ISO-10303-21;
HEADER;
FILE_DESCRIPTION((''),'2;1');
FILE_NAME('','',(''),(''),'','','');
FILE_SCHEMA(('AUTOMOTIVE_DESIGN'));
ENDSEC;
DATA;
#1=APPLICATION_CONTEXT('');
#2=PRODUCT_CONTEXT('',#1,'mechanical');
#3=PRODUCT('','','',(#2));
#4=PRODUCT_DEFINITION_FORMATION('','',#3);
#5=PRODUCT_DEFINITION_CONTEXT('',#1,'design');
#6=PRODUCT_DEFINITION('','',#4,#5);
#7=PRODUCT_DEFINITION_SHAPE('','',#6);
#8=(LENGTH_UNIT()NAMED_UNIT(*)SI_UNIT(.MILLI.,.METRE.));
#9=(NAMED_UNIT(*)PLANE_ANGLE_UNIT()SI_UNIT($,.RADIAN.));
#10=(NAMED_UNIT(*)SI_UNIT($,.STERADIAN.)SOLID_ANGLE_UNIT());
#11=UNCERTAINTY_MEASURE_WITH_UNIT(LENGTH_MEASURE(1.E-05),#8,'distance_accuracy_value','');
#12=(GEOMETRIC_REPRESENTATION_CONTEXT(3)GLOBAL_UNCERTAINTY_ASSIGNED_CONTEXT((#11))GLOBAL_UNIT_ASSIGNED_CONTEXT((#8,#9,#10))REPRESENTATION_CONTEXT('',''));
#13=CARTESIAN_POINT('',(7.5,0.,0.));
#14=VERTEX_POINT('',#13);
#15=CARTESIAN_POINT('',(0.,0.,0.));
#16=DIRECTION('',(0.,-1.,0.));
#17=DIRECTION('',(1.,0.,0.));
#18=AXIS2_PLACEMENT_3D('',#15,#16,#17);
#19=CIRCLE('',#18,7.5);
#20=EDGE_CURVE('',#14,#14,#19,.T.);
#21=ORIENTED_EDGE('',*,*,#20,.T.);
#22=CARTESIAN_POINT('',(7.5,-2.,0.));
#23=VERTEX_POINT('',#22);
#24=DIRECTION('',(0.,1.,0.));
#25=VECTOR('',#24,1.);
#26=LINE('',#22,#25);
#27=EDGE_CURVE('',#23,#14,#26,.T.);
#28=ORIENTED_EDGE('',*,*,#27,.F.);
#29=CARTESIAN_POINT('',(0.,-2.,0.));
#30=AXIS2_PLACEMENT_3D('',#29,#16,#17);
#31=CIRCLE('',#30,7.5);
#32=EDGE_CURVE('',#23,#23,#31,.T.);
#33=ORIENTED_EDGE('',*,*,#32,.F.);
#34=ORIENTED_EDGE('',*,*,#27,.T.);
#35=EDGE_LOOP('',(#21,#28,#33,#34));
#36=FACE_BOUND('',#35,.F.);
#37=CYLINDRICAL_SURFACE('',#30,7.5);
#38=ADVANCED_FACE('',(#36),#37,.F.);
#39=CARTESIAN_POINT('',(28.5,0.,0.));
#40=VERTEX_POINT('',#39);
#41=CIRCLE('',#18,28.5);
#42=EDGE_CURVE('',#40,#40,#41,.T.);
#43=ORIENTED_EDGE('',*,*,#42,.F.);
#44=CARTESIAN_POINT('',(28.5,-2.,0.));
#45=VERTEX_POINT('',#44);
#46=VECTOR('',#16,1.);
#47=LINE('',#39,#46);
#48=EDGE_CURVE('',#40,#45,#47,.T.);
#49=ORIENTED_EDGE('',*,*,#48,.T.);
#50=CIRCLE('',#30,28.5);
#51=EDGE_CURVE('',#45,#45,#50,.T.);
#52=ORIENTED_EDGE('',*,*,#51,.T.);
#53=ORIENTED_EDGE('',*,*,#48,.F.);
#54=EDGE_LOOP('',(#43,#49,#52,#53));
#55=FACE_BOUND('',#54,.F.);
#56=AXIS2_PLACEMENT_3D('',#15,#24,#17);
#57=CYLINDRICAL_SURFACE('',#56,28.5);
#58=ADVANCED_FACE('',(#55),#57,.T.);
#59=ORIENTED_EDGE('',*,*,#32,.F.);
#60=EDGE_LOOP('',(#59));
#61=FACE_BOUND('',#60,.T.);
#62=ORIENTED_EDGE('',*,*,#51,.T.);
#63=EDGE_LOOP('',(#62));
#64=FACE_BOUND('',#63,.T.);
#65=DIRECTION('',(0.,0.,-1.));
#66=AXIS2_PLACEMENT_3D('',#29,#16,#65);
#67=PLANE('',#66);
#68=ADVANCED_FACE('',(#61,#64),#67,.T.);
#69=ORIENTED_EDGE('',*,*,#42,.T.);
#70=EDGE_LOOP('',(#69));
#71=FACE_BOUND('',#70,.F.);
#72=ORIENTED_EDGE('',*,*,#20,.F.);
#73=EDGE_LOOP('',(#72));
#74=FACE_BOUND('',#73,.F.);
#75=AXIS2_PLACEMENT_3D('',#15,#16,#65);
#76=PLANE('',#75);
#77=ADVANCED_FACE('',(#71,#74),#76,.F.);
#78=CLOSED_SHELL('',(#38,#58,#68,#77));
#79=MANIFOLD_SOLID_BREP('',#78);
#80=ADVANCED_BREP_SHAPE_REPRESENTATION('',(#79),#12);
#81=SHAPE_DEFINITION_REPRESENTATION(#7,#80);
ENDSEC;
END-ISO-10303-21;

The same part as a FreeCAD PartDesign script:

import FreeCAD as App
import Part
import Sketcher

doc = App.newDocument("Part")
body = doc.addObject("PartDesign::Body", "Body")

sketch1 = body.newObject("Sketcher::SketchObject", "Sketch")
sketch1.AttachmentSupport = (doc.getObject("XZ_Plane"), [""])
sketch1.MapMode = "FlatFace"
sketch1.addGeometry(Part.Circle(App.Vector(0, 0, 0), App.Vector(0, 0, 1), 28), False)
sketch1.addConstraint(Sketcher.Constraint("Coincident", 0, 3, -1, 1))
sketch1.addConstraint(Sketcher.Constraint("Diameter", 0, 57.0))
pad1 = body.newObject("PartDesign::Pad", "Pad")
pad1.Profile = sketch1
pad1.Length = 2

sketch2 = body.newObject("Sketcher::SketchObject", "Sketch001")
sketch2.AttachmentSupport = (doc.getObject("XZ_Plane"), [""])
sketch2.MapMode = "FlatFace"
sketch2.AttachmentOffset = App.Placement(App.Vector(0, 0, 2), App.Rotation())
sketch2.addGeometry(Part.Circle(App.Vector(0, 0, 0), App.Vector(0, 0, 1), 8), False)
sketch2.addConstraint(Sketcher.Constraint("Coincident", 0, 3, -1, 1))
sketch2.addConstraint(Sketcher.Constraint("Diameter", 0, 15.0))
pocket1 = body.newObject("PartDesign::Pocket", "Pocket")
pocket1.Profile = sketch2
pocket1.Type = "ThroughAll"

doc.recompute()
